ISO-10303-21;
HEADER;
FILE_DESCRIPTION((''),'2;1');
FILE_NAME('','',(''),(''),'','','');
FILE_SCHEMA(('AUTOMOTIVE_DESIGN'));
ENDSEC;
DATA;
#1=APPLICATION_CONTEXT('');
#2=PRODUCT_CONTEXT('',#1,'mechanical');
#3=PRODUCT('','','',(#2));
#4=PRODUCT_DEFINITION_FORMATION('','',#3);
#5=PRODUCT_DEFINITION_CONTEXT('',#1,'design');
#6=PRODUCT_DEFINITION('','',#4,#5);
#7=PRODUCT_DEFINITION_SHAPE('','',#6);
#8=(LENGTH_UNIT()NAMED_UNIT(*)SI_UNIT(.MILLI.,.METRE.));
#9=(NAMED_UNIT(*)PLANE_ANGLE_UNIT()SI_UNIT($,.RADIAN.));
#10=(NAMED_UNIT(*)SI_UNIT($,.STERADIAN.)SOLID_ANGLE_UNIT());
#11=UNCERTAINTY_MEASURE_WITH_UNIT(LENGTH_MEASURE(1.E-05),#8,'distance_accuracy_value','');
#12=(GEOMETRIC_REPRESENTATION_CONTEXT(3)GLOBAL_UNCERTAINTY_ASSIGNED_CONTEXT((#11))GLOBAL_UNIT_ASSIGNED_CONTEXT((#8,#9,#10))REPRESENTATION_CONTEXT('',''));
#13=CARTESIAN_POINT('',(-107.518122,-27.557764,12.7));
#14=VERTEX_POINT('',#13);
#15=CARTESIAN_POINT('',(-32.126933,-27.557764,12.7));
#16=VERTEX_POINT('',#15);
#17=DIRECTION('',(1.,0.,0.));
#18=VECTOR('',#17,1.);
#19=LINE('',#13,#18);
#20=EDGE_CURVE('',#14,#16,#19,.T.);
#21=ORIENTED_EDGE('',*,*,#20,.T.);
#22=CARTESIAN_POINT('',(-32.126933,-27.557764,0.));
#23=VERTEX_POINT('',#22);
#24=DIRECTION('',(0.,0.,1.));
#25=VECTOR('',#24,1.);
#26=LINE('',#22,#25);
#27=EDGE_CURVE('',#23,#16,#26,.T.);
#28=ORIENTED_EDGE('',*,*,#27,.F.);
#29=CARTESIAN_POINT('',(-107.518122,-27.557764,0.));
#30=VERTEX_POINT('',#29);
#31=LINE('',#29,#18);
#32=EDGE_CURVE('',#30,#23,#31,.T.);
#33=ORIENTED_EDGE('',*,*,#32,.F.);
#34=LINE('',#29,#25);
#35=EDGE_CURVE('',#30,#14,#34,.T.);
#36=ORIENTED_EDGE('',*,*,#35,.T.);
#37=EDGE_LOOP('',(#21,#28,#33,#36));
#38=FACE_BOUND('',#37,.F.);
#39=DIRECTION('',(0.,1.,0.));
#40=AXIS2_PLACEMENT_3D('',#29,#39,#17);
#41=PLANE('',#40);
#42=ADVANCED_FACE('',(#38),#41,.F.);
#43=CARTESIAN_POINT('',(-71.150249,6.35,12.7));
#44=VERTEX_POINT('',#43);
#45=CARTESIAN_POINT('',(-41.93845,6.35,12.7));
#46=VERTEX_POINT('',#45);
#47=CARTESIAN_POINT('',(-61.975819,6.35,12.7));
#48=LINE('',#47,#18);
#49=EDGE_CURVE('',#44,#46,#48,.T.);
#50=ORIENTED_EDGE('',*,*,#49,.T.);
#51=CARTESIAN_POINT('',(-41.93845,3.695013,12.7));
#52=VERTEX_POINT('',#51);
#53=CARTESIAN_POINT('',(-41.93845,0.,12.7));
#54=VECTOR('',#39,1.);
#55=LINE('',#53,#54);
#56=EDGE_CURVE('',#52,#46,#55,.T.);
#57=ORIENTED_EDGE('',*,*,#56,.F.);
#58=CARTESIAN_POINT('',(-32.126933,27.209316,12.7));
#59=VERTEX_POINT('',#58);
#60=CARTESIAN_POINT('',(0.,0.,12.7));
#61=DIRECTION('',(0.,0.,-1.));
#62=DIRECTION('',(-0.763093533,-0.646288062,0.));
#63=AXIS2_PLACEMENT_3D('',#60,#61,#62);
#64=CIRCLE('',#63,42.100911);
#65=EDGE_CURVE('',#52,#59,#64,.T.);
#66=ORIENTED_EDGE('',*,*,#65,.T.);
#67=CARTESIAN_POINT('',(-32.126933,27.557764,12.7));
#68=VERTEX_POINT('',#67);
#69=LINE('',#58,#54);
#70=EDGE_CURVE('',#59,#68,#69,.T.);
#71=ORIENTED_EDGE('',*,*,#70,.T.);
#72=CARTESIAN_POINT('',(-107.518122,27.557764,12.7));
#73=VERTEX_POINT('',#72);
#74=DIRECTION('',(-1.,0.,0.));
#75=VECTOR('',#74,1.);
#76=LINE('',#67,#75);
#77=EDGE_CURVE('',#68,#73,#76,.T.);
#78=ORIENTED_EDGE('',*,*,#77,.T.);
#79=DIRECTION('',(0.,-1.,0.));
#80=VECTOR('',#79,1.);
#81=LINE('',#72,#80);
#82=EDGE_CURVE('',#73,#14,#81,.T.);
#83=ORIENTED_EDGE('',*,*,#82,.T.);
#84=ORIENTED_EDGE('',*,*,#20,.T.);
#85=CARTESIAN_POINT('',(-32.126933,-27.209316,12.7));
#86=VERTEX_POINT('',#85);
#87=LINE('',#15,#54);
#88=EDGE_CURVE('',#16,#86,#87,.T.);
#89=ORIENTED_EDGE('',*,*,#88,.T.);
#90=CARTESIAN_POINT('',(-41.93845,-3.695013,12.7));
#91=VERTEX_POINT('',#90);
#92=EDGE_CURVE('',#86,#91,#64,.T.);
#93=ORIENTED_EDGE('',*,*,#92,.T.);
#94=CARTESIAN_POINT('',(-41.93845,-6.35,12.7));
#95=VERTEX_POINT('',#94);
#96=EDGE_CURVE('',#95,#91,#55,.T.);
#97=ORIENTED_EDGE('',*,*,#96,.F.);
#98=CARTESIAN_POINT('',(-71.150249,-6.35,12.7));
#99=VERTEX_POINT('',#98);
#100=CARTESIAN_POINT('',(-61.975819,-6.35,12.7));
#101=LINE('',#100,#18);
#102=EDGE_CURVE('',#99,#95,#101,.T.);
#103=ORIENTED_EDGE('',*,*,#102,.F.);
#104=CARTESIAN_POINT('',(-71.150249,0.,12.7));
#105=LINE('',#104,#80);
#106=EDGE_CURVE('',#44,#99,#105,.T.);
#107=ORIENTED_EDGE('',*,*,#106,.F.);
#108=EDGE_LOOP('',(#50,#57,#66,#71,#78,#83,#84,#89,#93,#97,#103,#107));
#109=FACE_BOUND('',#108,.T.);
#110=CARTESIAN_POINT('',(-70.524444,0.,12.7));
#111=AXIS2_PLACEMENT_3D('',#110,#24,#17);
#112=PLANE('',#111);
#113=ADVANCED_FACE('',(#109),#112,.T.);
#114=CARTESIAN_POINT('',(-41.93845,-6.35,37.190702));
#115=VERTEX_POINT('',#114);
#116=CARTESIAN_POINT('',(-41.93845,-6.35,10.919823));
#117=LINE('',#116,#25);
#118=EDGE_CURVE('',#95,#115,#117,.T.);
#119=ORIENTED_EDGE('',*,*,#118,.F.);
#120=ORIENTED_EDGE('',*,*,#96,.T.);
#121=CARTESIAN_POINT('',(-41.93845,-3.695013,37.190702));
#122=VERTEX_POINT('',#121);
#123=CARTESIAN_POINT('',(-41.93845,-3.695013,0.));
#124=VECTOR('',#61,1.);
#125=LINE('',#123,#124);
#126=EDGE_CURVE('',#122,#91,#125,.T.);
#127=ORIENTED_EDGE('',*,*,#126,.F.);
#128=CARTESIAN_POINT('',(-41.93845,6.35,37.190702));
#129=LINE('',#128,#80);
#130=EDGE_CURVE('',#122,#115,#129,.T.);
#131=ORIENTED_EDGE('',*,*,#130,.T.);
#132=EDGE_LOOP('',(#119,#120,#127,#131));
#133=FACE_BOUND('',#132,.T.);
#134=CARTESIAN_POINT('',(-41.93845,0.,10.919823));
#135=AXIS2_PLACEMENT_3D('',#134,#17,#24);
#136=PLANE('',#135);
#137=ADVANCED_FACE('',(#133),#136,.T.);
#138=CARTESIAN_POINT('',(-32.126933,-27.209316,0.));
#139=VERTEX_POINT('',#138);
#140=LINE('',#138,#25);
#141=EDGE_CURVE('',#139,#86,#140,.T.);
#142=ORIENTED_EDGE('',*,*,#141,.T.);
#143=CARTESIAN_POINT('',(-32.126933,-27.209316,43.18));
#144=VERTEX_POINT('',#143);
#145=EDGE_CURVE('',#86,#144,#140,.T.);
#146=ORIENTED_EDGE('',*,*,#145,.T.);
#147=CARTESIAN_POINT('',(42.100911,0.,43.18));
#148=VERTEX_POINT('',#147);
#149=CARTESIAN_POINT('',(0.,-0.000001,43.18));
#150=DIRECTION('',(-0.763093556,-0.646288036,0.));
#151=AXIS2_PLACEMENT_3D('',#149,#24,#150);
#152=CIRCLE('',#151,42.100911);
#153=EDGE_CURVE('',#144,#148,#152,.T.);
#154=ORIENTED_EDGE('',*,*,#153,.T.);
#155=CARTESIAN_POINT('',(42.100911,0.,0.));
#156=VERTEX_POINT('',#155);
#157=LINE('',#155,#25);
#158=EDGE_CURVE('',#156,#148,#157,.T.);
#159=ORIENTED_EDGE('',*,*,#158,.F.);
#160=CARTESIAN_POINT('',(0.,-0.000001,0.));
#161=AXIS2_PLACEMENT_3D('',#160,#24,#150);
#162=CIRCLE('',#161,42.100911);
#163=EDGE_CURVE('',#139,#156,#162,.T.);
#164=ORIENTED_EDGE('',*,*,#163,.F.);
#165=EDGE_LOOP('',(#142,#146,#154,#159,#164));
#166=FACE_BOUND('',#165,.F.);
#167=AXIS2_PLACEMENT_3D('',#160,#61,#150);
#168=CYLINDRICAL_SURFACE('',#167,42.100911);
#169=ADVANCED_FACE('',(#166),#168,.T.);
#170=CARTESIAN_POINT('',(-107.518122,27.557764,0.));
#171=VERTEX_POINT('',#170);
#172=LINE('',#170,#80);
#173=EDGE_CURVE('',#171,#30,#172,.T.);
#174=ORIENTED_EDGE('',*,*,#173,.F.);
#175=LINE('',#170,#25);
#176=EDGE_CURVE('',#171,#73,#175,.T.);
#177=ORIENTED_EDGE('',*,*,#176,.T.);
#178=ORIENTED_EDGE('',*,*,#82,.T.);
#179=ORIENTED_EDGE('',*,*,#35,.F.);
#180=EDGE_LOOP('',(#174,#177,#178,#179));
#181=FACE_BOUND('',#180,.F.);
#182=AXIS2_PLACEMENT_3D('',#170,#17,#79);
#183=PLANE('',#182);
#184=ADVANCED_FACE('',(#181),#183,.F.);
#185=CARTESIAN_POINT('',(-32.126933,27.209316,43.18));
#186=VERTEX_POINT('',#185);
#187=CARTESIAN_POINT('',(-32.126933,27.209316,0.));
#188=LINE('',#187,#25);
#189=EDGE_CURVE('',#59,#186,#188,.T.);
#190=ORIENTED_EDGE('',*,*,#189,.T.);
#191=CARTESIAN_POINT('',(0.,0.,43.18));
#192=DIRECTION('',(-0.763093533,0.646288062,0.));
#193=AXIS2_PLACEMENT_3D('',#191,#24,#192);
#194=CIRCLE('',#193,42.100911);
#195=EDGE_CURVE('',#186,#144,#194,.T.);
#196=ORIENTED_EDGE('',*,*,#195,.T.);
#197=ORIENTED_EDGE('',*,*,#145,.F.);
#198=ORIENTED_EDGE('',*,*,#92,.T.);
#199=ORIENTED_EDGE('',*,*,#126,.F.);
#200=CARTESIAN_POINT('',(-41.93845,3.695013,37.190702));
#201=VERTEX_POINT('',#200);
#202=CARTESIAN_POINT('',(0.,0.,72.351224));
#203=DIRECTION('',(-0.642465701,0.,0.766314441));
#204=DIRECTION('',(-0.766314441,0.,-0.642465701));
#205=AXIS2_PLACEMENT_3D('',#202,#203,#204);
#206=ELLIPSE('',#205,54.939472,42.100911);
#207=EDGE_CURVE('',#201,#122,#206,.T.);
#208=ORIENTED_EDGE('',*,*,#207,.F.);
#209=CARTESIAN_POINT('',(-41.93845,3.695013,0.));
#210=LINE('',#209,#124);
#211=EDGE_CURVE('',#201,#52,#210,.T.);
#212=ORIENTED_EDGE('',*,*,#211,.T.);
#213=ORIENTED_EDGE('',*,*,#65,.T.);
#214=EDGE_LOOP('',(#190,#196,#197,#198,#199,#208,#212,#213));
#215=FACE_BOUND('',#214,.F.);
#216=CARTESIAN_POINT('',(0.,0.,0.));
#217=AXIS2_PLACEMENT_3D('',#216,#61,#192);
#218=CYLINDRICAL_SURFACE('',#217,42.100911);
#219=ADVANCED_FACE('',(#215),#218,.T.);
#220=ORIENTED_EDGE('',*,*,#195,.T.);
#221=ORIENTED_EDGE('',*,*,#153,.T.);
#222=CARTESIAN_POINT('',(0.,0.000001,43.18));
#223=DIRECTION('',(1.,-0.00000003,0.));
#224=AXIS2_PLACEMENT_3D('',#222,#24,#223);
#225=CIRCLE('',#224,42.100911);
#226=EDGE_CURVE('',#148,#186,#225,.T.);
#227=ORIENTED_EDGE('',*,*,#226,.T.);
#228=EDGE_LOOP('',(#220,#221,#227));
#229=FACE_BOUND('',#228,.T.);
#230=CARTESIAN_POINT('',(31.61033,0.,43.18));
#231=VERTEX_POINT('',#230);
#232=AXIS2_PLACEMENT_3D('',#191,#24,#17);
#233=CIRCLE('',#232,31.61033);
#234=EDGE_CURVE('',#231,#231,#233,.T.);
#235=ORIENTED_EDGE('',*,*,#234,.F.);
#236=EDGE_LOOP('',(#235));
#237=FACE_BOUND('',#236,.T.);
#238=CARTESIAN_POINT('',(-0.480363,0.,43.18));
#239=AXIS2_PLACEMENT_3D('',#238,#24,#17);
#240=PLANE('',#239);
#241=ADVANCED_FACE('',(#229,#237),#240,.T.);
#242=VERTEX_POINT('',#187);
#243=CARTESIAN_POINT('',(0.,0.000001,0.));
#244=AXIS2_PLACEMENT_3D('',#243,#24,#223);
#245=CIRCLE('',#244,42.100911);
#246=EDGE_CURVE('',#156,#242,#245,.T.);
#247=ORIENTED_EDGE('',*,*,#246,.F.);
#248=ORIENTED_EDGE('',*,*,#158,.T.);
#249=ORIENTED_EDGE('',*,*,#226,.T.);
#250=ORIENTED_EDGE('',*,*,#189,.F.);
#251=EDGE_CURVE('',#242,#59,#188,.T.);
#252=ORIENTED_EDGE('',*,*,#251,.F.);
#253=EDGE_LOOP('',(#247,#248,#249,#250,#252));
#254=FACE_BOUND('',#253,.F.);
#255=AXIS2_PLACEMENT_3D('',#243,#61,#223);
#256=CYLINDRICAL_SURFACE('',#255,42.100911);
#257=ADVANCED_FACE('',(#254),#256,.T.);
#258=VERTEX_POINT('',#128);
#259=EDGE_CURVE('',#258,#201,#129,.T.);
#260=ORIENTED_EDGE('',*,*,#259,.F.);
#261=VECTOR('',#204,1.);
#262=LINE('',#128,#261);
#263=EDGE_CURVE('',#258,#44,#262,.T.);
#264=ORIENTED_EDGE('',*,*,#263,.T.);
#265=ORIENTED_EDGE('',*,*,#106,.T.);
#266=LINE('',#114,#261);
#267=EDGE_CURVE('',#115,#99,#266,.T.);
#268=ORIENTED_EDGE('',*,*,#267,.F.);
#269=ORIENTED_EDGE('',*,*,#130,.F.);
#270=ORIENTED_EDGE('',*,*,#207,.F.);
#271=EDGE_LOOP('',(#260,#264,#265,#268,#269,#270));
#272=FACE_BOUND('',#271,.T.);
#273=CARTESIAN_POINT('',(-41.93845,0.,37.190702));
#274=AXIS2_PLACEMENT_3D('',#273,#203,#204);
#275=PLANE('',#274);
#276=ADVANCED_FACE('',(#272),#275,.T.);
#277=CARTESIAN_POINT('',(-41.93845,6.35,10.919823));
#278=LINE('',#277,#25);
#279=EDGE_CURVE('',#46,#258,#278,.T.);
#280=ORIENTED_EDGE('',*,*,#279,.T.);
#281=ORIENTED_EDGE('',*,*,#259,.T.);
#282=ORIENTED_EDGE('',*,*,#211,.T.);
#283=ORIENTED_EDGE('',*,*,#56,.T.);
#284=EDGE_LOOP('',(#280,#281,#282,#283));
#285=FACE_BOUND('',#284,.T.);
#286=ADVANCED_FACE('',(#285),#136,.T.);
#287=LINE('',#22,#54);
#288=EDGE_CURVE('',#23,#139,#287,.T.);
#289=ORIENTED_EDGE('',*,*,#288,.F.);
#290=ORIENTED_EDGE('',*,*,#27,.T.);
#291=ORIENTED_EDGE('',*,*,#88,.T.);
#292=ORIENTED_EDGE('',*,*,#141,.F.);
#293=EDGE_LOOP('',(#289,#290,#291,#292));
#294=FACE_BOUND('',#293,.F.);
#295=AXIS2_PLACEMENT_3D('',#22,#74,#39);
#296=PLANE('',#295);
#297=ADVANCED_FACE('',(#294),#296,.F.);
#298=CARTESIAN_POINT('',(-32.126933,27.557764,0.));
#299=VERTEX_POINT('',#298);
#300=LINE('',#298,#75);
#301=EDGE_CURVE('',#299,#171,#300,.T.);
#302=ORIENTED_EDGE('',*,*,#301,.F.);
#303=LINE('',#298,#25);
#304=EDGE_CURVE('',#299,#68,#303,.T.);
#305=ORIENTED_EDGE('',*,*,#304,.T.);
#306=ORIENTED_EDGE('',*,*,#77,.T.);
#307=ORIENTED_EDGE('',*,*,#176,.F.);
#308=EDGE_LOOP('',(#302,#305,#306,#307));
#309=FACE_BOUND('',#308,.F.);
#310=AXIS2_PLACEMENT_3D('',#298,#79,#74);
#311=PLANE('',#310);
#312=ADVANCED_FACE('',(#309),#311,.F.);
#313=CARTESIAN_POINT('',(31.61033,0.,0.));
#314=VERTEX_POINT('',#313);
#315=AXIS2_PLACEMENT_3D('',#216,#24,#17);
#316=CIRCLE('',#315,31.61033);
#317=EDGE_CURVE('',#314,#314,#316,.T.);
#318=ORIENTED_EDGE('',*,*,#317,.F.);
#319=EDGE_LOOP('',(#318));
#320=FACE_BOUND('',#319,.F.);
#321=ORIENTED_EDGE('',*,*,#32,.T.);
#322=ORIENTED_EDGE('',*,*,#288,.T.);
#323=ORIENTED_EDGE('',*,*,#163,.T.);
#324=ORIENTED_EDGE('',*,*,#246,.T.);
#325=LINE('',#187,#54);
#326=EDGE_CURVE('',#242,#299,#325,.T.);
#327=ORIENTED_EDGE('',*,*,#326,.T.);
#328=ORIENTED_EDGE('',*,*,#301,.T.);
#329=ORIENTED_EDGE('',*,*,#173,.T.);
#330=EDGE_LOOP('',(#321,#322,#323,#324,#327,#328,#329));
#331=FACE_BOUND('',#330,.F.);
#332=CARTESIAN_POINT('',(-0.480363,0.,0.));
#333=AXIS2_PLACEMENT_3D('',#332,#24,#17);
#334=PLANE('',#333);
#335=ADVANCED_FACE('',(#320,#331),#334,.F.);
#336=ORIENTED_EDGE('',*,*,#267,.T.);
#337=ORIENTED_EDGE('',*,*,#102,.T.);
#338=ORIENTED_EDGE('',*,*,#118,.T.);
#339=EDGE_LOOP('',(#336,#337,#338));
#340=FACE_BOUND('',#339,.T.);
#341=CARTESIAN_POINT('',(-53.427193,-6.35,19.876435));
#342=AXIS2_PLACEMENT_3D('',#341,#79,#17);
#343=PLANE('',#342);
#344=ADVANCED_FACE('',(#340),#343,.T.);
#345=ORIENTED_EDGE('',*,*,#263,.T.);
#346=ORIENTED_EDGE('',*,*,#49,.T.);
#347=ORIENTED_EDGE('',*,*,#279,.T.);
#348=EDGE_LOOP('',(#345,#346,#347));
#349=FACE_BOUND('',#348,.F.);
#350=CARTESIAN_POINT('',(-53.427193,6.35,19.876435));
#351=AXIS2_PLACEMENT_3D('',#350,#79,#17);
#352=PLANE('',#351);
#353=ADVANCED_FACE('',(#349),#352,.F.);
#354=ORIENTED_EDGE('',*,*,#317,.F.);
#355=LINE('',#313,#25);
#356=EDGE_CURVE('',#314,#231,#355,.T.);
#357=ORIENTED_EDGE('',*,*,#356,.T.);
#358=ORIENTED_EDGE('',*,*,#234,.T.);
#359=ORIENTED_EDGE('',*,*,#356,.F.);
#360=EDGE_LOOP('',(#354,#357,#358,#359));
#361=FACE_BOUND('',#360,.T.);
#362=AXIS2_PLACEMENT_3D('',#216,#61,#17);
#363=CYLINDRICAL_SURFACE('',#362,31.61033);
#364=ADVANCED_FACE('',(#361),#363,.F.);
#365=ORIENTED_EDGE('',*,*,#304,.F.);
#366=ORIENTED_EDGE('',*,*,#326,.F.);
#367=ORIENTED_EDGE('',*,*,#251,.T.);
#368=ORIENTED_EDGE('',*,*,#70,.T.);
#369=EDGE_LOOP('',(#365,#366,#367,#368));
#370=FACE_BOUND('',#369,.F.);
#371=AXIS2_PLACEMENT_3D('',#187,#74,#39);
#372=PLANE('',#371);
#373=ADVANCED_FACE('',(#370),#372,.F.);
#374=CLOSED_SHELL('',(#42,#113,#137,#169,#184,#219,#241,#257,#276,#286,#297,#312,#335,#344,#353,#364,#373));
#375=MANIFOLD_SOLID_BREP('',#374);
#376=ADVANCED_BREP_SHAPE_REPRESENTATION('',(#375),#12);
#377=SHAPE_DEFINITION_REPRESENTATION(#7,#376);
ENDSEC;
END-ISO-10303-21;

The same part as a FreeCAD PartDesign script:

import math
import FreeCAD as App
import Part
import Sketcher

V = App.Vector
Q = App.Units.Quantity

doc = App.newDocument("Part")
body = doc.addObject("PartDesign::Body", "Body")

sketch1 = doc.addObject("Sketcher::SketchObject", "Sketch")
body.addObject(sketch1)
sketch1.AttachmentSupport = (doc.XY_Plane, [""])
sketch1.MapMode = "FlatFace"
sketch1.addGeometry([
    Part.LineSegment(V(-32.13, 27.56, 0), V(-107.52, 27.56, 0)),
    Part.LineSegment(V(-107.52, 27.56, 0), V(-107.52, -27.56, 0)),
    Part.LineSegment(V(-107.52, -27.56, 0), V(-32.13, -27.56, 0)),
    Part.LineSegment(V(-32.13, -27.56, 0), V(-32.13, -27.21, 0)),
    Part.ArcOfCircle(Part.Circle(V(0, 0, 0), V(0, 0, 1), 42.1), math.radians(140), math.radians(220)),
    Part.LineSegment(V(-32.13, 27.21, 0), V(-32.13, 27.56, 0)),
], False)
sketch1.addConstraint([
    Sketcher.Constraint("Coincident", 0, 2, 1, 1),
    Sketcher.Constraint("Coincident", 1, 2, 2, 1),
    Sketcher.Constraint("Coincident", 2, 2, 3, 1),
    Sketcher.Constraint("Coincident", 3, 2, 4, 2),
    Sketcher.Constraint("Coincident", 4, 1, 5, 1),
    Sketcher.Constraint("Coincident", 5, 2, 0, 1),
    Sketcher.Constraint("Horizontal", 0),
    Sketcher.Constraint("Vertical", 1),
    Sketcher.Constraint("Horizontal", 2),
    Sketcher.Constraint("Vertical", 3),
    Sketcher.Constraint("Vertical", 5),
    Sketcher.Constraint("Coincident", 4, 3, -1, 1),
    Sketcher.Constraint("Symmetric", 2, 2, 5, 2, -1),
    Sketcher.Constraint("Radius", 4, Q("42.100911 mm")),
    Sketcher.Constraint("DistanceX", 0, 2, 0, 1, Q("75.391189 mm")),
    Sketcher.Constraint("DistanceY", 1, 2, 1, 1, Q("55.115528 mm")),
    Sketcher.Constraint("DistanceY", 3, 1, 3, 2, Q("0.348448 mm")),
])
pad1 = doc.addObject("PartDesign::Pad", "Pad")
body.addObject(pad1)
pad1.Profile = sketch1
pad1.Length = Q("0.5 in")

sketch2 = doc.addObject("Sketcher::SketchObject", "Sketch001")
body.addObject(sketch2)
sketch2.AttachmentSupport = (doc.XY_Plane, [""])
sketch2.MapMode = "FlatFace"
sketch2.addGeometry([
    Part.ArcOfCircle(Part.Circle(V(0, 0, 0), V(0, 0, 1), 42), math.radians(0), math.radians(140)),
    Part.ArcOfCircle(Part.Circle(V(0, 0, 0), V(0, 0, 1), 42), math.radians(140), math.radians(220)),
    Part.ArcOfCircle(Part.Circle(V(0, 0, 0), V(0, 0, 1), 42), math.radians(-140), math.radians(0)),
    Part.Circle(V(0, 0, 0), V(0, 0, 1), 32),
], False)
sketch2.addConstraint([
    Sketcher.Constraint("Tangent", 0, 2, 1, 1),
    Sketcher.Constraint("Tangent", 1, 2, 2, 1),
    Sketcher.Constraint("Tangent", 2, 2, 0, 1),
    Sketcher.Constraint("Coincident", 0, 3, -1, 1),
    Sketcher.Constraint("Coincident", 3, 3, -1, 1),
    Sketcher.Constraint("PointOnObject", 2, 2, -1),
    Sketcher.Constraint("Vertical", 0, 2, 1, 2),
    Sketcher.Constraint("Diameter", 3, Q("63.22066 mm")),
    Sketcher.Constraint("Radius", 0, Q("42.100911 mm")),
    Sketcher.Constraint("DistanceX", 0, 2, -1, 1, Q("32.126933 mm")),
])
pad2 = doc.addObject("PartDesign::Pad", "Pad001")
body.addObject(pad2)
pad2.Profile = sketch2
pad2.Length = Q("1.7 in")

sketch3 = doc.addObject("Sketcher::SketchObject", "Sketch002")
body.addObject(sketch3)
sketch3.AttachmentSupport = (doc.XZ_Plane, [""])
sketch3.MapMode = "FlatFace"
sketch3.addGeometry([
    Part.LineSegment(V(-42, 11, 0), V(-42, 37, 0)),
    Part.LineSegment(V(-42, 37, 0), V(-73, 11, 0)),
    Part.LineSegment(V(-73, 11, 0), V(-42, 11, 0)),
], False)
sketch3.addConstraint([
    Sketcher.Constraint("Coincident", 0, 2, 1, 1),
    Sketcher.Constraint("Coincident", 1, 2, 2, 1),
    Sketcher.Constraint("Coincident", 2, 2, 0, 1),
    Sketcher.Constraint("Vertical", 0),
    Sketcher.Constraint("Horizontal", 2),
    Sketcher.Constraint("DistanceX", 2, 1, 2, 2, Q("31.335142 mm")),
    Sketcher.Constraint("DistanceY", 0, 1, 0, 2, Q("26.270879 mm")),
    Sketcher.Constraint("DistanceX", 0, 2, -1, 1, Q("41.93845 mm")),
    Sketcher.Constraint("DistanceY", -1, 1, 0, 2, Q("37.190702 mm")),
])
pad3 = doc.addObject("PartDesign::Pad", "Pad002")
body.addObject(pad3)
pad3.Profile = sketch3
pad3.Length = Q("0.5 in")
pad3.Midplane = True

doc.recompute()
